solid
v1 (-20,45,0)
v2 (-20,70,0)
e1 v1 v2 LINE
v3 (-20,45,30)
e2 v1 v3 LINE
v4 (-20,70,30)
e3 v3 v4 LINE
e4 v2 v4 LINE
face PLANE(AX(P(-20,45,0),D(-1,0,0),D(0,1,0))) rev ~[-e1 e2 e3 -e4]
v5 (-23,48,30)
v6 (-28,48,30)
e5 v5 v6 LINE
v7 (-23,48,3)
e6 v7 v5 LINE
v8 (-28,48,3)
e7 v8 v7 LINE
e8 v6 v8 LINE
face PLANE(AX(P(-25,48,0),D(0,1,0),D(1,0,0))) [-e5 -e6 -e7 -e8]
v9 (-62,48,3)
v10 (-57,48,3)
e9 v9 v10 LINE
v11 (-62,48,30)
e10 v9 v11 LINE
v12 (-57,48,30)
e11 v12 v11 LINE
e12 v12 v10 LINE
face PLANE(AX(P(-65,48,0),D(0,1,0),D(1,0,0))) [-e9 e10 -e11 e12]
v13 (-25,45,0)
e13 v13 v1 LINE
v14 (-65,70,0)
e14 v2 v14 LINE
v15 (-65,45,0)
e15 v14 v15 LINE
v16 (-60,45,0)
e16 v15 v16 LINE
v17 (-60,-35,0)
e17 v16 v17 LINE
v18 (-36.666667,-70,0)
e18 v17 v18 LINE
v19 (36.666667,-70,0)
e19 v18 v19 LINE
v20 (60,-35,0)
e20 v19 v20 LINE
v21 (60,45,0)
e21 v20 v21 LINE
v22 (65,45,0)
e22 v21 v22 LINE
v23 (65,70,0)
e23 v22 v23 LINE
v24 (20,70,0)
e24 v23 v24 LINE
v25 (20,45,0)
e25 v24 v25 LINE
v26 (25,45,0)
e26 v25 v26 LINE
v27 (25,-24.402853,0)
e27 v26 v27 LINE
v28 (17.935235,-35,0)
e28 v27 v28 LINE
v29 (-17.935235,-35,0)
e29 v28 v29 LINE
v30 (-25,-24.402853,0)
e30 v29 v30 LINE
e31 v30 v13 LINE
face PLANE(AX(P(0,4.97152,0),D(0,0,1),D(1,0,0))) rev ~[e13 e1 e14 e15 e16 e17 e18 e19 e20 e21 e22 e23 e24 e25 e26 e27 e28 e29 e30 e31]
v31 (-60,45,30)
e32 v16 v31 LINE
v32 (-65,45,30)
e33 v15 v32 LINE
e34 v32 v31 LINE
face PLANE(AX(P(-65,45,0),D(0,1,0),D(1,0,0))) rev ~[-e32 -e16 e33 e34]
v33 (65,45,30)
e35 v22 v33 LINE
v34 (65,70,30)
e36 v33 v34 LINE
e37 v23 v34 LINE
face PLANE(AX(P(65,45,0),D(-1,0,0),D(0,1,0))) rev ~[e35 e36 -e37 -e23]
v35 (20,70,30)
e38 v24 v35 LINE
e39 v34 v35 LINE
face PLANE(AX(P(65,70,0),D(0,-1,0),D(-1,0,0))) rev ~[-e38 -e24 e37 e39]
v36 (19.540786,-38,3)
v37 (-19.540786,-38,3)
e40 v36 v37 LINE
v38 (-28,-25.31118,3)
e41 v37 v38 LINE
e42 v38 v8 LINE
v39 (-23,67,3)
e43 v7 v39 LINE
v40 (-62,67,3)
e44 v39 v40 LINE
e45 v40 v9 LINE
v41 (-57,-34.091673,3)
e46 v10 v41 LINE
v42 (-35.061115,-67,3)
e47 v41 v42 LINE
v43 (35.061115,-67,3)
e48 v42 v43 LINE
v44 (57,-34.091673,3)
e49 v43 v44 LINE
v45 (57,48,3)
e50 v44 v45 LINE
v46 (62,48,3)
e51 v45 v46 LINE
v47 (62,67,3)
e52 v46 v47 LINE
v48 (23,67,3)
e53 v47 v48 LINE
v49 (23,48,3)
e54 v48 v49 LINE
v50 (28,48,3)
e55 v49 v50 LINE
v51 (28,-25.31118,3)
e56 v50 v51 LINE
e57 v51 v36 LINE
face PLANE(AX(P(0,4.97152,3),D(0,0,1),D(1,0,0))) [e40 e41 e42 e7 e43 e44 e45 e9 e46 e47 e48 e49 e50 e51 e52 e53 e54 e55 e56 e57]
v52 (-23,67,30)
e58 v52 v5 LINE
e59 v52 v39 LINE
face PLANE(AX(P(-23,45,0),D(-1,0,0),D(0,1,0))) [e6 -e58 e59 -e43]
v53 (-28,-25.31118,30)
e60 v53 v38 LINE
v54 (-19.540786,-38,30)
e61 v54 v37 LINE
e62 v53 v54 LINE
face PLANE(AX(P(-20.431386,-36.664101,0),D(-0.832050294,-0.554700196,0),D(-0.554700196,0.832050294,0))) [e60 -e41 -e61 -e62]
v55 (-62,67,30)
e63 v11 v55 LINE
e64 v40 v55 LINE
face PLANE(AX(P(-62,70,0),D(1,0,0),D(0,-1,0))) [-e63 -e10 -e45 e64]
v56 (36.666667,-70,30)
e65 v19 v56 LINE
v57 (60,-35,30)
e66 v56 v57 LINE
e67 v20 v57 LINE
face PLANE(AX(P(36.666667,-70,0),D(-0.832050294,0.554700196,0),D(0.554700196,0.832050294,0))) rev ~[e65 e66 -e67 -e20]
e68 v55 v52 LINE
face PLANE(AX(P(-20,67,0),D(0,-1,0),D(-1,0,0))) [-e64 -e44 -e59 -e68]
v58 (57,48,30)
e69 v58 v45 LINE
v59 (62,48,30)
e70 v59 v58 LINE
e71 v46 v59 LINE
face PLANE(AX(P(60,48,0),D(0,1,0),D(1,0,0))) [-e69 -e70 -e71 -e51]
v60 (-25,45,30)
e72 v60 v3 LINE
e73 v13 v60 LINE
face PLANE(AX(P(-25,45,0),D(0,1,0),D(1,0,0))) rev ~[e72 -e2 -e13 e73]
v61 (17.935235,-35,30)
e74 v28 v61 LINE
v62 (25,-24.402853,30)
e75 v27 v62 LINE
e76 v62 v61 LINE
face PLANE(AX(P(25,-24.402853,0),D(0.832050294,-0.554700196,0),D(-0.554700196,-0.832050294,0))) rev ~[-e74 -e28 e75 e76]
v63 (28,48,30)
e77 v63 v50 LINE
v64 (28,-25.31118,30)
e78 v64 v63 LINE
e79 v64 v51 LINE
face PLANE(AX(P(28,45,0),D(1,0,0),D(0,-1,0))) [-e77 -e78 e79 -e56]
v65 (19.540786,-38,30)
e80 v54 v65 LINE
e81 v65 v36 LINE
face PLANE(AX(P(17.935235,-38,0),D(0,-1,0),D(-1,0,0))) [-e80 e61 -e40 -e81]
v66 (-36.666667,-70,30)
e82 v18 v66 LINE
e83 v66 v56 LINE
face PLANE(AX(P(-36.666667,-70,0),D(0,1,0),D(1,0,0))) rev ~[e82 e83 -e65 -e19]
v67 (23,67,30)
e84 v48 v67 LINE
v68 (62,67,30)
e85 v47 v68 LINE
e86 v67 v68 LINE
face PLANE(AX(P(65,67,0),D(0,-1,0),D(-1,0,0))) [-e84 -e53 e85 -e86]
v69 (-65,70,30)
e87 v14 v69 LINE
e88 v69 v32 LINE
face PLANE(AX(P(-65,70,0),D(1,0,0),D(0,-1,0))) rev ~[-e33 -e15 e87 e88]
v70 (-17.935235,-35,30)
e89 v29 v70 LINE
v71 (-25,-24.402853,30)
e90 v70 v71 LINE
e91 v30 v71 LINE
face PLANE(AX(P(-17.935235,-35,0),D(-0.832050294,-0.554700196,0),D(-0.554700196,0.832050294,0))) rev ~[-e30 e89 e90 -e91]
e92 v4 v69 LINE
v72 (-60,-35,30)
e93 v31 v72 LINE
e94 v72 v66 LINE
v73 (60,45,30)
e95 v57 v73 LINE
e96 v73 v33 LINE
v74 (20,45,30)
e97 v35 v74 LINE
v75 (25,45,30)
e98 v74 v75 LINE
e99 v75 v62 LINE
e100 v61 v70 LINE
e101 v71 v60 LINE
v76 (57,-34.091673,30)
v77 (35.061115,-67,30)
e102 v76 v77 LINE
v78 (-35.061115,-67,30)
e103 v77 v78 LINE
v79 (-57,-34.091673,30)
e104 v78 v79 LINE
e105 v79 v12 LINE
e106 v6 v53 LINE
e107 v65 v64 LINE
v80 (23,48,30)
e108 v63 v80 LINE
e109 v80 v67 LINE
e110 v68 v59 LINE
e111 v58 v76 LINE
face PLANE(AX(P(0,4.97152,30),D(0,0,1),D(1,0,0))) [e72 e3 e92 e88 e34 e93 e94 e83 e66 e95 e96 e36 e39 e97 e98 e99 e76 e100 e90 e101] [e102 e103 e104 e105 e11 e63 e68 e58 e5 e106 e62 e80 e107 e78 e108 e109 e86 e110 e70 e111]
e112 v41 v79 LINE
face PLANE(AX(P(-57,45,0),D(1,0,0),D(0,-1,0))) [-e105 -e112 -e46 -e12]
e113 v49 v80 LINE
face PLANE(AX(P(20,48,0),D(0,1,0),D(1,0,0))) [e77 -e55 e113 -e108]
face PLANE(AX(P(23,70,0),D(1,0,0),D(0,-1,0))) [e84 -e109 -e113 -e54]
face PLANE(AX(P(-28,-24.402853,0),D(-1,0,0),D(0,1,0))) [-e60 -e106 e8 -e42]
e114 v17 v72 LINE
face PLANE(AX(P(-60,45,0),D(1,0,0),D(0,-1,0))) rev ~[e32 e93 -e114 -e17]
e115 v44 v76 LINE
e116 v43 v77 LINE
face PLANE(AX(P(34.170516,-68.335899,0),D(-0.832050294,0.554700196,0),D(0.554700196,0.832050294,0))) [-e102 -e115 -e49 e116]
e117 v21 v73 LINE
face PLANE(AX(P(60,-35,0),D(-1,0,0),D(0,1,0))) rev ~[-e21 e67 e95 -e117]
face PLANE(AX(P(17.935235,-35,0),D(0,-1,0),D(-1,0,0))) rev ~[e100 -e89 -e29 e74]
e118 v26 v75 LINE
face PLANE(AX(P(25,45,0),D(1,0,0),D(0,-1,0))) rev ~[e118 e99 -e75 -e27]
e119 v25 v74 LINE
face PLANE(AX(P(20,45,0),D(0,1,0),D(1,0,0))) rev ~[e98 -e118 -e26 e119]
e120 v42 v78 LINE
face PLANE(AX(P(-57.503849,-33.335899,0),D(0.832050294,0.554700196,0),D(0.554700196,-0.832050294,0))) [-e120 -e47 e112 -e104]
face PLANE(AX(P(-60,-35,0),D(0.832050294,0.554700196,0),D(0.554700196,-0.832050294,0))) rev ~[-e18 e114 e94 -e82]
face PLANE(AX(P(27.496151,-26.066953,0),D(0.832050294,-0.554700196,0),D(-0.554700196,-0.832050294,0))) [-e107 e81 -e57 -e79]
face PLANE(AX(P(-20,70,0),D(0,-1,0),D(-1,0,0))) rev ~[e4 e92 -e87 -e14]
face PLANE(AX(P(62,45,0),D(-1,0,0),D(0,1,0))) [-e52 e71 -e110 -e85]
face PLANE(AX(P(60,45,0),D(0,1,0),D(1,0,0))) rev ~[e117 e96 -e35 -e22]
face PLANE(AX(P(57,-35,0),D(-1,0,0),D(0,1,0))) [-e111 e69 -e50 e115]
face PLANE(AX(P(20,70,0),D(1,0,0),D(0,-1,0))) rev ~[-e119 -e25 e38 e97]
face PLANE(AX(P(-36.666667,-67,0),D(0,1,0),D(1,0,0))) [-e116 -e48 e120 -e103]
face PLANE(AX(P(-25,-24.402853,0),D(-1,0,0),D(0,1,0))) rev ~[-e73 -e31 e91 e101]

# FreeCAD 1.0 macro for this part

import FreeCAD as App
import Part
import Sketcher

V = App.Vector


def faces_at(feature, points):
    """Names of the faces that lie closest to the given points."""
    faces = feature.Shape.Faces
    near = lambda p: min(range(len(faces)), key=lambda i: faces[i].distToShape(Part.Vertex(*p))[0])
    return sorted({f"Face{near(p) + 1}" for p in points})

doc = App.newDocument("Part")
body = doc.addObject("PartDesign::Body", "Body")

# Sketch on XY plane
sketch1 = doc.addObject("Sketcher::SketchObject", "Sketch")
body.addObject(sketch1)
sketch1.AttachmentSupport = (doc.XY_Plane, [""])
sketch1.MapMode = "FlatFace"
sketch1.addGeometry(Part.LineSegment(V(-20, 70, 0), V(-65, 70, 0)), False)
sketch1.addGeometry(Part.LineSegment(V(-65, 70, 0), V(-65, 45, 0)), False)
sketch1.addGeometry(Part.LineSegment(V(-65, 45, 0), V(-60, 45, 0)), False)
sketch1.addGeometry(Part.LineSegment(V(-60, 45, 0), V(-60, -35, 0)), False)
sketch1.addGeometry(Part.LineSegment(V(-60, -35, 0), V(-37, -70, 0)), False)
sketch1.addGeometry(Part.LineSegment(V(-37, -70, 0), V(37, -70, 0)), False)
sketch1.addGeometry(Part.LineSegment(V(37, -70, 0), V(60, -35, 0)), False)
sketch1.addGeometry(Part.LineSegment(V(60, -35, 0), V(60, 45, 0)), False)
sketch1.addGeometry(Part.LineSegment(V(60, 45, 0), V(65, 45, 0)), False)
sketch1.addGeometry(Part.LineSegment(V(65, 45, 0), V(65, 70, 0)), False)
sketch1.addGeometry(Part.LineSegment(V(65, 70, 0), V(20, 70, 0)), False)
sketch1.addGeometry(Part.LineSegment(V(20, 70, 0), V(20, 45, 0)), False)
sketch1.addGeometry(Part.LineSegment(V(20, 45, 0), V(25, 45, 0)), False)
sketch1.addGeometry(Part.LineSegment(V(25, 45, 0), V(25, -24, 0)), False)
sketch1.addGeometry(Part.LineSegment(V(25, -24, 0), V(18, -35, 0)), False)
sketch1.addGeometry(Part.LineSegment(V(18, -35, 0), V(-18, -35, 0)), False)
sketch1.addGeometry(Part.LineSegment(V(-18, -35, 0), V(-25, -24, 0)), False)
sketch1.addGeometry(Part.LineSegment(V(-25, -24, 0), V(-25, 45, 0)), False)
sketch1.addGeometry(Part.LineSegment(V(-25, 45, 0), V(-20, 45, 0)), False)
sketch1.addGeometry(Part.LineSegment(V(-20, 45, 0), V(-20, 70, 0)), False)
sketch1.addConstraint(Sketcher.Constraint("Coincident", 0, 2, 1, 1))
sketch1.addConstraint(Sketcher.Constraint("Coincident", 1, 2, 2, 1))
sketch1.addConstraint(Sketcher.Constraint("Coincident", 2, 2, 3, 1))
sketch1.addConstraint(Sketcher.Constraint("Coincident", 3, 2, 4, 1))
sketch1.addConstraint(Sketcher.Constraint("Coincident", 4, 2, 5, 1))
sketch1.addConstraint(Sketcher.Constraint("Coincident", 5, 2, 6, 1))
sketch1.addConstraint(Sketcher.Constraint("Coincident", 6, 2, 7, 1))
sketch1.addConstraint(Sketcher.Constraint("Coincident", 7, 2, 8, 1))
sketch1.addConstraint(Sketcher.Constraint("Coincident", 8, 2, 9, 1))
sketch1.addConstraint(Sketcher.Constraint("Coincident", 9, 2, 10, 1))
sketch1.addConstraint(Sketcher.Constraint("Coincident", 10, 2, 11, 1))
sketch1.addConstraint(Sketcher.Constraint("Coincident", 11, 2, 12, 1))
sketch1.addConstraint(Sketcher.Constraint("Coincident", 12, 2, 13, 1))
sketch1.addConstraint(Sketcher.Constraint("Coincident", 13, 2, 14, 1))
sketch1.addConstraint(Sketcher.Constraint("Coincident", 14, 2, 15, 1))
sketch1.addConstraint(Sketcher.Constraint("Coincident", 15, 2, 16, 1))
sketch1.addConstraint(Sketcher.Constraint("Coincident", 16, 2, 17, 1))
sketch1.addConstraint(Sketcher.Constraint("Coincident", 17, 2, 18, 1))
sketch1.addConstraint(Sketcher.Constraint("Coincident", 18, 2, 19, 1))
sketch1.addConstraint(Sketcher.Constraint("Coincident", 19, 2, 0, 1))
sketch1.addConstraint(Sketcher.Constraint("Horizontal", 0))
sketch1.addConstraint(Sketcher.Constraint("Vertical", 1))
sketch1.addConstraint(Sketcher.Constraint("Horizontal", 2))
sketch1.addConstraint(Sketcher.Constraint("Vertical", 3))
sketch1.addConstraint(Sketcher.Constraint("Horizontal", 5))
sketch1.addConstraint(Sketcher.Constraint("Vertical", 7))
sketch1.addConstraint(Sketcher.Constraint("Horizontal", 8))
sketch1.addConstraint(Sketcher.Constraint("Vertical", 9))
sketch1.addConstraint(Sketcher.Constraint("Horizontal", 10))
sketch1.addConstraint(Sketcher.Constraint("Vertical", 11))
sketch1.addConstraint(Sketcher.Constraint("Horizontal", 12))
sketch1.addConstraint(Sketcher.Constraint("Vertical", 13))
sketch1.addConstraint(Sketcher.Constraint("Horizontal", 15))
sketch1.addConstraint(Sketcher.Constraint("Vertical", 17))
sketch1.addConstraint(Sketcher.Constraint("Horizontal", 18))
sketch1.addConstraint(Sketcher.Constraint("Vertical", 19))
sketch1.addConstraint(Sketcher.Constraint("Symmetric", 3, 2, 6, 2, -2))
sketch1.addConstraint(Sketcher.Constraint("Symmetric", 1, 2, 8, 2, -2))
sketch1.addConstraint(Sketcher.Constraint("Symmetric", 13, 2, 16, 2, -2))
sketch1.addConstraint(Sketcher.Constraint("Symmetric", 11, 2, 18, 2, -2))
sketch1.addConstraint(Sketcher.Constraint("Parallel", 6, 14))
sketch1.addConstraint(Sketcher.Constraint("Parallel", 4, 16))
sketch1.addConstraint(Sketcher.Constraint("Horizontal", 0, 2, 9, 2))
sketch1.addConstraint(Sketcher.Constraint("Horizontal", 8, 2, 11, 2))
sketch1.addConstraint(Sketcher.Constraint("Horizontal", 6, 2, 14, 2))
sketch1.addConstraint(Sketcher.Constraint("Equal", 8, 12))
sketch1.addConstraint(Sketcher.Constraint("Equal", 4, 6))
sketch1.addConstraint(Sketcher.Constraint("DistanceX", 0, 2, 0, 1, 45.0))
sketch1.addConstraint(Sketcher.Constraint("DistanceX", 2, 1, 2, 2, 5.0))
sketch1.addConstraint(Sketcher.Constraint("DistanceY", 1, 2, 1, 1, 25.0))
sketch1.addConstraint(Sketcher.Constraint("DistanceY", 3, 2, 3, 1, 80.0))
sketch1.addConstraint(Sketcher.Constraint("DistanceX", 0, 2, -1, 1, 65.0))
sketch1.addConstraint(Sketcher.Constraint("DistanceY", -1, 1, 0, 2, 70.0))
sketch1.addConstraint(Sketcher.Constraint("DistanceY", 4, 2, -1, 1, 70.0))
sketch1.addConstraint(Sketcher.Constraint("DistanceX", 15, 2, 15, 1, 35.87047))
sketch1.addConstraint(Sketcher.Constraint("DistanceX", 4, 2, 14, 2, 54.601902))
pad1 = doc.addObject("PartDesign::Pad", "Pad")
body.addObject(pad1)
pad1.Profile = sketch1
pad1.Length = 30
doc.recompute()

thickness = doc.addObject("PartDesign::Thickness", "Thickness")
body.addObject(thickness)
thickness.Base = (pad1, faces_at(pad1, [(-26, -28, 30)]))
thickness.Value = 3
thickness.Reversed = True
thickness.Join = "Intersection"

doc.recompute()
